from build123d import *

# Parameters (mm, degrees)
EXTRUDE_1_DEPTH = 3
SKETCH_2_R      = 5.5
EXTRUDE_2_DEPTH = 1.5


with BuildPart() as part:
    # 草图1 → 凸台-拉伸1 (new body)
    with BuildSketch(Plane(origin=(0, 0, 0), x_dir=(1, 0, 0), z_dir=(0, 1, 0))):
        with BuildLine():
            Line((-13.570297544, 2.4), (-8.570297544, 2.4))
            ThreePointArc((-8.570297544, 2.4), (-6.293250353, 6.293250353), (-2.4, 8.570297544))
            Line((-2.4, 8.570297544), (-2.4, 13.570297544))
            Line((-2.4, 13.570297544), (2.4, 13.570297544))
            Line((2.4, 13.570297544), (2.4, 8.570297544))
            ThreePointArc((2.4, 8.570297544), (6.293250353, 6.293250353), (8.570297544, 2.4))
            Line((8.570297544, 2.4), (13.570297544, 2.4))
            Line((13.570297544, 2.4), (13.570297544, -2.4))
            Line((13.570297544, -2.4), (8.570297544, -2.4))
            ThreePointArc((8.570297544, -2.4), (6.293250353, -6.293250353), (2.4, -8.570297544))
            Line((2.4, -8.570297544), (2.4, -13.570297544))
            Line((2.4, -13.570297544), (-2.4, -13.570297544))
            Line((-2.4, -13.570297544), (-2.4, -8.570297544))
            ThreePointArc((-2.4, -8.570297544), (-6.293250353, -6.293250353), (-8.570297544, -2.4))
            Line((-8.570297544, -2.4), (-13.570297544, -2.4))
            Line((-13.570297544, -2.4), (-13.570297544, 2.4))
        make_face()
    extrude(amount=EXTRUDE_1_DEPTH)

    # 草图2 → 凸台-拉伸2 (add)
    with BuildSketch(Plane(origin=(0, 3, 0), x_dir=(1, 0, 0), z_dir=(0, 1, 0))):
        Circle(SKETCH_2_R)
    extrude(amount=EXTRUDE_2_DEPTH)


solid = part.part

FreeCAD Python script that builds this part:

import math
import FreeCAD as App
import Part
import Sketcher
from FreeCAD import Vector
Q = App.Units.Quantity

doc = App.newDocument("Part")
body = doc.addObject("PartDesign::Body", "Body")

sketch1 = body.newObject("Sketcher::SketchObject", "Sketch")
sketch1.AttachmentSupport = (doc.getObject("XZ_Plane"), [""])
sketch1.MapMode = "FlatFace"
sketch1.addGeometry([
    Part.LineSegment(Vector(-8.6, -2.4, 0), Vector(-13.6, -2.4, 0)),
    Part.LineSegment(Vector(-13.6, -2.4, 0), Vector(-13.6, 2.4, 0)),
    Part.LineSegment(Vector(-13.6, 2.4, 0), Vector(-8.6, 2.4, 0)),
    Part.ArcOfCircle(Part.Circle(Vector(0, 0, 0), Vector(0, 0, 1), 8.9), math.radians(106), math.radians(164)),
    Part.LineSegment(Vector(-2.4, 8.6, 0), Vector(-2.4, 13.6, 0)),
    Part.LineSegment(Vector(-2.4, 13.6, 0), Vector(2.4, 13.6, 0)),
    Part.LineSegment(Vector(2.4, 13.6, 0), Vector(2.4, 8.6, 0)),
    Part.ArcOfCircle(Part.Circle(Vector(0, 0, 0), Vector(0, 0, 1), 8.9), math.radians(16), math.radians(74)),
    Part.LineSegment(Vector(8.6, 2.4, 0), Vector(13.6, 2.4, 0)),
    Part.LineSegment(Vector(13.6, 2.4, 0), Vector(13.6, -2.4, 0)),
    Part.LineSegment(Vector(13.6, -2.4, 0), Vector(8.6, -2.4, 0)),
    Part.ArcOfCircle(Part.Circle(Vector(0, 0, 0), Vector(0, 0, 1), 8.9), math.radians(-74), math.radians(-16)),
    Part.LineSegment(Vector(2.4, -8.6, 0), Vector(2.4, -13.6, 0)),
    Part.LineSegment(Vector(2.4, -13.6, 0), Vector(-2.4, -13.6, 0)),
    Part.LineSegment(Vector(-2.4, -13.6, 0), Vector(-2.4, -8.6, 0)),
    Part.ArcOfCircle(Part.Circle(Vector(0, 0, 0), Vector(0, 0, 1), 8.9), math.radians(-164), math.radians(-106)),
], False)
sketch1.addConstraint([
    Sketcher.Constraint("Coincident", 0, 2, 1, 1),
    Sketcher.Constraint("Coincident", 1, 2, 2, 1),
    Sketcher.Constraint("Coincident", 2, 2, 3, 2),
    Sketcher.Constraint("Coincident", 3, 1, 4, 1),
    Sketcher.Constraint("Coincident", 4, 2, 5, 1),
    Sketcher.Constraint("Coincident", 5, 2, 6, 1),
    Sketcher.Constraint("Coincident", 6, 2, 7, 2),
    Sketcher.Constraint("Coincident", 7, 1, 8, 1),
    Sketcher.Constraint("Coincident", 8, 2, 9, 1),
    Sketcher.Constraint("Coincident", 9, 2, 10, 1),
    Sketcher.Constraint("Coincident", 10, 2, 11, 2),
    Sketcher.Constraint("Coincident", 11, 1, 12, 1),
    Sketcher.Constraint("Coincident", 12, 2, 13, 1),
    Sketcher.Constraint("Coincident", 13, 2, 14, 1),
    Sketcher.Constraint("Coincident", 14, 2, 15, 2),
    Sketcher.Constraint("Coincident", 15, 1, 0, 1),
    Sketcher.Constraint("Horizontal", 0),
    Sketcher.Constraint("Vertical", 1),
    Sketcher.Constraint("Horizontal", 2),
    Sketcher.Constraint("Vertical", 4),
    Sketcher.Constraint("Horizontal", 5),
    Sketcher.Constraint("Vertical", 6),
    Sketcher.Constraint("Horizontal", 8),
    Sketcher.Constraint("Vertical", 9),
    Sketcher.Constraint("Horizontal", 10),
    Sketcher.Constraint("Vertical", 12),
    Sketcher.Constraint("Horizontal", 13),
    Sketcher.Constraint("Vertical", 14),
    Sketcher.Constraint("Coincident", 3, 3, -1, 1),
    Sketcher.Constraint("Coincident", 7, 3, -1, 1),
    Sketcher.Constraint("Coincident", 11, 3, -1, 1),
    Sketcher.Constraint("Coincident", 15, 3, -1, 1),
    Sketcher.Constraint("Equal", 3, 7),
    Sketcher.Constraint("Equal", 7, 11),
    Sketcher.Constraint("Equal", 11, 15),
    Sketcher.Constraint("Symmetric", 0, 2, 8, 2, -1, 1),
    Sketcher.Constraint("Symmetric", 4, 2, 12, 2, -1, 1),
    Sketcher.Constraint("Horizontal", 3, 1, 6, 2),
    Sketcher.Constraint("Horizontal", 2, 2, 7, 1),
    Sketcher.Constraint("Horizontal", 0, 2, 9, 2),
    Sketcher.Constraint("Horizontal", 11, 1, 14, 2),
    Sketcher.Constraint("Equal", 13, 1),
    Sketcher.Constraint("Equal", 10, 4),
    Sketcher.Constraint("Radius", 3, Q("8.9 mm")),
    Sketcher.Constraint("DistanceX", 0, 2, 0, 1, Q("5 mm")),
    Sketcher.Constraint("DistanceX", 5, 1, 5, 2, Q("4.8 mm")),
])
pad1 = body.newObject("PartDesign::Pad", "Pad")
pad1.Profile = sketch1
pad1.Length = 3
pad1.Reversed = True

sketch2 = body.newObject("Sketcher::SketchObject", "Sketch001")
sketch2.AttachmentSupport = (doc.getObject("XZ_Plane"), [""])
sketch2.MapMode = "FlatFace"
sketch2.AttachmentOffset = App.Placement(Vector(0, 0, -3), App.Rotation())
sketch2.addGeometry(Part.Circle(Vector(0, 0, 0), Vector(0, 0, 1), 6), False)
sketch2.addConstraint([
    Sketcher.Constraint("Coincident", 0, 3, -1, 1),
    Sketcher.Constraint("Diameter", 0, Q("11 mm")),
])
pad2 = body.newObject("PartDesign::Pad", "Pad001")
pad2.Profile = sketch2
pad2.Length = 1.5
pad2.Reversed = True

doc.recompute()
